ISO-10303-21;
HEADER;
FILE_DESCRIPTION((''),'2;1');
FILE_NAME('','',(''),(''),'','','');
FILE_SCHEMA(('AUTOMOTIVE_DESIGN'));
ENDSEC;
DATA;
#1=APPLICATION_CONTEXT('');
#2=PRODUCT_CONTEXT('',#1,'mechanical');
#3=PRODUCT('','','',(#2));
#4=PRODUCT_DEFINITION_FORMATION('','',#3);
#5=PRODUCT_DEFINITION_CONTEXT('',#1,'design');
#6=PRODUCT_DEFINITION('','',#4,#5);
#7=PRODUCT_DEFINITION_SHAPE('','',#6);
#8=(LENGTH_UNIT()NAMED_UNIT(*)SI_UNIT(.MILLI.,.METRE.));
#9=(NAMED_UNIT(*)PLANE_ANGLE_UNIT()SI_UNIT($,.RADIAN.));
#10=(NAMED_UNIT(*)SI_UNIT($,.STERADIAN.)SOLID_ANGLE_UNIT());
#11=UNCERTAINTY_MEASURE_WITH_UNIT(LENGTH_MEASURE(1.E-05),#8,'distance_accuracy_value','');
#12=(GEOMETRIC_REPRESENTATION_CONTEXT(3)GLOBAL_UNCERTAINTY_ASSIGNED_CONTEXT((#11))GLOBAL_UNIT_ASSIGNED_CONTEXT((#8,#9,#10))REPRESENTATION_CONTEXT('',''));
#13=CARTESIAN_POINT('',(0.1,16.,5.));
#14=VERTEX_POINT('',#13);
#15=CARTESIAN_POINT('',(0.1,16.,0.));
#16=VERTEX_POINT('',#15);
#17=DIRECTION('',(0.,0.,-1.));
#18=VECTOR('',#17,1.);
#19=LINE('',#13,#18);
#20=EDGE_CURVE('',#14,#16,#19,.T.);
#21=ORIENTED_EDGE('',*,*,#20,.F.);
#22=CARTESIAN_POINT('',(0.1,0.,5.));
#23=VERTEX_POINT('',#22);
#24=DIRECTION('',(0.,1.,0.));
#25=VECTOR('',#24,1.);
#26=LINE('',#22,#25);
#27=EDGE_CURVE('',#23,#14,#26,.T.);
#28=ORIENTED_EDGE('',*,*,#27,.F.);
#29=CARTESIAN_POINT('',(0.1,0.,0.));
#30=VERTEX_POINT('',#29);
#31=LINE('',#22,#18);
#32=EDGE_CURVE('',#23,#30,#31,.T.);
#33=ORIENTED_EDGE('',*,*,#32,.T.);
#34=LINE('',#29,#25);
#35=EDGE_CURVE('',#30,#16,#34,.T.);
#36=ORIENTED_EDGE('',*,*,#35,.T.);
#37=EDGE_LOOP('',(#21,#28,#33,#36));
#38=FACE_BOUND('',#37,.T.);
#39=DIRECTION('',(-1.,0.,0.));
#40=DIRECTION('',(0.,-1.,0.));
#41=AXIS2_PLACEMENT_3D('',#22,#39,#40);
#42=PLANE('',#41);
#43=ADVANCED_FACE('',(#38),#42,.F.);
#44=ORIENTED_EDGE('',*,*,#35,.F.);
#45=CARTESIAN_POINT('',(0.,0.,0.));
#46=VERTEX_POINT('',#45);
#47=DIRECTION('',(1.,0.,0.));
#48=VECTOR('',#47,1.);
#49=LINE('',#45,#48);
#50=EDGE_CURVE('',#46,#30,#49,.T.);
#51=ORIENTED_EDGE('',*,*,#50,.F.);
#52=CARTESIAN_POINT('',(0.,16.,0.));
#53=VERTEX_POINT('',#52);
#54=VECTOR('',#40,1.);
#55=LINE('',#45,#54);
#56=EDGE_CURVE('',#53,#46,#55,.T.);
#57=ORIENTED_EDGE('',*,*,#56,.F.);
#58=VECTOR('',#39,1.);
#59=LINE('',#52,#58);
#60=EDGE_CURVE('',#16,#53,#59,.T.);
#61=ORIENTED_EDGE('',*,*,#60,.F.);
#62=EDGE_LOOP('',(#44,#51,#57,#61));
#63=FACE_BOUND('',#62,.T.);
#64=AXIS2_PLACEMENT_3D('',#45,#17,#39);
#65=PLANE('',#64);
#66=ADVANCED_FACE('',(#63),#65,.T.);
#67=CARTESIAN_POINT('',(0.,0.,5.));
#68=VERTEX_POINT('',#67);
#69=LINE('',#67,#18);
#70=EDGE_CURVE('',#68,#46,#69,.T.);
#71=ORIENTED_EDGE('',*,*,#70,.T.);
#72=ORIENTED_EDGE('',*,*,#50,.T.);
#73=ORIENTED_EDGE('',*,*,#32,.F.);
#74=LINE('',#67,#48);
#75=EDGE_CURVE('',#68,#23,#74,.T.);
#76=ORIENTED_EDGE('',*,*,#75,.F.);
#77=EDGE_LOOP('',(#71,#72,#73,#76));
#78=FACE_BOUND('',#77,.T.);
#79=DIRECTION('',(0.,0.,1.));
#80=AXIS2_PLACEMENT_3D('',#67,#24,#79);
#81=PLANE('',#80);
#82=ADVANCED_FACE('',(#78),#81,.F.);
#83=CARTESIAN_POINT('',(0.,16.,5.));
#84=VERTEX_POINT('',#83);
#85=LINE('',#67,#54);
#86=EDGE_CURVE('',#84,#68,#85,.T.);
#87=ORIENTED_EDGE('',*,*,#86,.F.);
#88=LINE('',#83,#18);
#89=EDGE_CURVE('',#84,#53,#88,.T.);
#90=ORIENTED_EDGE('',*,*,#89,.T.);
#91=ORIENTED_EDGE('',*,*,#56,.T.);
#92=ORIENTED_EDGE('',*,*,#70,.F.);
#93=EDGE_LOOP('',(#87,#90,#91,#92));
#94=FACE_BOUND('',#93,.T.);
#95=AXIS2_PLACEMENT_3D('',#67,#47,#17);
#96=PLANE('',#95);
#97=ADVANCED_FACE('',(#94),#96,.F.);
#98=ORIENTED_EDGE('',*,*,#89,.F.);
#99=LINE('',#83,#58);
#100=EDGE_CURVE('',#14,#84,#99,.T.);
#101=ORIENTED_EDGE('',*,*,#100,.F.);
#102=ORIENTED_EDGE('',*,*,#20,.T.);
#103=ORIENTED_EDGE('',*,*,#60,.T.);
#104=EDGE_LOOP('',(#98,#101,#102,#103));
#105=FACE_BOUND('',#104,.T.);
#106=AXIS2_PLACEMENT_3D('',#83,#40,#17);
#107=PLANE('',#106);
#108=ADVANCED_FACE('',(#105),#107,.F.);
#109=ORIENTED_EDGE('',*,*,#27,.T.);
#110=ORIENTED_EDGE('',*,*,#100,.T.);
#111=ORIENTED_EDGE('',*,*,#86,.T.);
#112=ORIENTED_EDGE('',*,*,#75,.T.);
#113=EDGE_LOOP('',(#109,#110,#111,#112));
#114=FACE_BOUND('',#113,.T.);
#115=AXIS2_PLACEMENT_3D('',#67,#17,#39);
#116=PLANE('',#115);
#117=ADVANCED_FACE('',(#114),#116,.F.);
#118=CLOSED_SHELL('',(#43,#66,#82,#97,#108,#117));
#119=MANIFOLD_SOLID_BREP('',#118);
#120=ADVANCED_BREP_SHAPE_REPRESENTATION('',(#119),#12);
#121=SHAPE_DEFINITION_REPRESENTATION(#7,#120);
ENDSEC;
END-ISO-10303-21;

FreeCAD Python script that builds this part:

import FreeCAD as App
import Part
import Sketcher

doc = App.newDocument("Part")
body = doc.addObject("PartDesign::Body", "Body")

sketch1 = body.newObject("Sketcher::SketchObject", "Sketch")
sketch1.AttachmentSupport = (doc.getObject("XY_Plane"), [""])
sketch1.MapMode = "FlatFace"
sketch1.addGeometry(Part.LineSegment(App.Vector(0, 16, 0), App.Vector(0, 0, 0)), False)
sketch1.addGeometry(Part.LineSegment(App.Vector(0, 0, 0), App.Vector(0.1, 0, 0)), False)
sketch1.addGeometry(Part.LineSegment(App.Vector(0.1, 0, 0), App.Vector(0.1, 16, 0)), False)
sketch1.addGeometry(Part.LineSegment(App.Vector(0.1, 16, 0), App.Vector(0, 16, 0)), False)
sketch1.addConstraint(Sketcher.Constraint("Coincident", 0, 2, 1, 1))
sketch1.addConstraint(Sketcher.Constraint("Coincident", 1, 2, 2, 1))
sketch1.addConstraint(Sketcher.Constraint("Coincident", 2, 2, 3, 1))
sketch1.addConstraint(Sketcher.Constraint("Coincident", 3, 2, 0, 1))
sketch1.addConstraint(Sketcher.Constraint("Vertical", 0))
sketch1.addConstraint(Sketcher.Constraint("Horizontal", 1))
sketch1.addConstraint(Sketcher.Constraint("Vertical", 2))
sketch1.addConstraint(Sketcher.Constraint("Horizontal", 3))
sketch1.addConstraint(Sketcher.Constraint("Coincident", 0, 2, -1, 1))
sketch1.addConstraint(Sketcher.Constraint("DistanceY", 0, 2, 0, 1, 16.0))
sketch1.addConstraint(Sketcher.Constraint("DistanceX", 1, 1, 1, 2, 0.1))
pad1 = body.newObject("PartDesign::Pad", "Pad")
pad1.Profile = sketch1
pad1.Length = 5

doc.recompute()
